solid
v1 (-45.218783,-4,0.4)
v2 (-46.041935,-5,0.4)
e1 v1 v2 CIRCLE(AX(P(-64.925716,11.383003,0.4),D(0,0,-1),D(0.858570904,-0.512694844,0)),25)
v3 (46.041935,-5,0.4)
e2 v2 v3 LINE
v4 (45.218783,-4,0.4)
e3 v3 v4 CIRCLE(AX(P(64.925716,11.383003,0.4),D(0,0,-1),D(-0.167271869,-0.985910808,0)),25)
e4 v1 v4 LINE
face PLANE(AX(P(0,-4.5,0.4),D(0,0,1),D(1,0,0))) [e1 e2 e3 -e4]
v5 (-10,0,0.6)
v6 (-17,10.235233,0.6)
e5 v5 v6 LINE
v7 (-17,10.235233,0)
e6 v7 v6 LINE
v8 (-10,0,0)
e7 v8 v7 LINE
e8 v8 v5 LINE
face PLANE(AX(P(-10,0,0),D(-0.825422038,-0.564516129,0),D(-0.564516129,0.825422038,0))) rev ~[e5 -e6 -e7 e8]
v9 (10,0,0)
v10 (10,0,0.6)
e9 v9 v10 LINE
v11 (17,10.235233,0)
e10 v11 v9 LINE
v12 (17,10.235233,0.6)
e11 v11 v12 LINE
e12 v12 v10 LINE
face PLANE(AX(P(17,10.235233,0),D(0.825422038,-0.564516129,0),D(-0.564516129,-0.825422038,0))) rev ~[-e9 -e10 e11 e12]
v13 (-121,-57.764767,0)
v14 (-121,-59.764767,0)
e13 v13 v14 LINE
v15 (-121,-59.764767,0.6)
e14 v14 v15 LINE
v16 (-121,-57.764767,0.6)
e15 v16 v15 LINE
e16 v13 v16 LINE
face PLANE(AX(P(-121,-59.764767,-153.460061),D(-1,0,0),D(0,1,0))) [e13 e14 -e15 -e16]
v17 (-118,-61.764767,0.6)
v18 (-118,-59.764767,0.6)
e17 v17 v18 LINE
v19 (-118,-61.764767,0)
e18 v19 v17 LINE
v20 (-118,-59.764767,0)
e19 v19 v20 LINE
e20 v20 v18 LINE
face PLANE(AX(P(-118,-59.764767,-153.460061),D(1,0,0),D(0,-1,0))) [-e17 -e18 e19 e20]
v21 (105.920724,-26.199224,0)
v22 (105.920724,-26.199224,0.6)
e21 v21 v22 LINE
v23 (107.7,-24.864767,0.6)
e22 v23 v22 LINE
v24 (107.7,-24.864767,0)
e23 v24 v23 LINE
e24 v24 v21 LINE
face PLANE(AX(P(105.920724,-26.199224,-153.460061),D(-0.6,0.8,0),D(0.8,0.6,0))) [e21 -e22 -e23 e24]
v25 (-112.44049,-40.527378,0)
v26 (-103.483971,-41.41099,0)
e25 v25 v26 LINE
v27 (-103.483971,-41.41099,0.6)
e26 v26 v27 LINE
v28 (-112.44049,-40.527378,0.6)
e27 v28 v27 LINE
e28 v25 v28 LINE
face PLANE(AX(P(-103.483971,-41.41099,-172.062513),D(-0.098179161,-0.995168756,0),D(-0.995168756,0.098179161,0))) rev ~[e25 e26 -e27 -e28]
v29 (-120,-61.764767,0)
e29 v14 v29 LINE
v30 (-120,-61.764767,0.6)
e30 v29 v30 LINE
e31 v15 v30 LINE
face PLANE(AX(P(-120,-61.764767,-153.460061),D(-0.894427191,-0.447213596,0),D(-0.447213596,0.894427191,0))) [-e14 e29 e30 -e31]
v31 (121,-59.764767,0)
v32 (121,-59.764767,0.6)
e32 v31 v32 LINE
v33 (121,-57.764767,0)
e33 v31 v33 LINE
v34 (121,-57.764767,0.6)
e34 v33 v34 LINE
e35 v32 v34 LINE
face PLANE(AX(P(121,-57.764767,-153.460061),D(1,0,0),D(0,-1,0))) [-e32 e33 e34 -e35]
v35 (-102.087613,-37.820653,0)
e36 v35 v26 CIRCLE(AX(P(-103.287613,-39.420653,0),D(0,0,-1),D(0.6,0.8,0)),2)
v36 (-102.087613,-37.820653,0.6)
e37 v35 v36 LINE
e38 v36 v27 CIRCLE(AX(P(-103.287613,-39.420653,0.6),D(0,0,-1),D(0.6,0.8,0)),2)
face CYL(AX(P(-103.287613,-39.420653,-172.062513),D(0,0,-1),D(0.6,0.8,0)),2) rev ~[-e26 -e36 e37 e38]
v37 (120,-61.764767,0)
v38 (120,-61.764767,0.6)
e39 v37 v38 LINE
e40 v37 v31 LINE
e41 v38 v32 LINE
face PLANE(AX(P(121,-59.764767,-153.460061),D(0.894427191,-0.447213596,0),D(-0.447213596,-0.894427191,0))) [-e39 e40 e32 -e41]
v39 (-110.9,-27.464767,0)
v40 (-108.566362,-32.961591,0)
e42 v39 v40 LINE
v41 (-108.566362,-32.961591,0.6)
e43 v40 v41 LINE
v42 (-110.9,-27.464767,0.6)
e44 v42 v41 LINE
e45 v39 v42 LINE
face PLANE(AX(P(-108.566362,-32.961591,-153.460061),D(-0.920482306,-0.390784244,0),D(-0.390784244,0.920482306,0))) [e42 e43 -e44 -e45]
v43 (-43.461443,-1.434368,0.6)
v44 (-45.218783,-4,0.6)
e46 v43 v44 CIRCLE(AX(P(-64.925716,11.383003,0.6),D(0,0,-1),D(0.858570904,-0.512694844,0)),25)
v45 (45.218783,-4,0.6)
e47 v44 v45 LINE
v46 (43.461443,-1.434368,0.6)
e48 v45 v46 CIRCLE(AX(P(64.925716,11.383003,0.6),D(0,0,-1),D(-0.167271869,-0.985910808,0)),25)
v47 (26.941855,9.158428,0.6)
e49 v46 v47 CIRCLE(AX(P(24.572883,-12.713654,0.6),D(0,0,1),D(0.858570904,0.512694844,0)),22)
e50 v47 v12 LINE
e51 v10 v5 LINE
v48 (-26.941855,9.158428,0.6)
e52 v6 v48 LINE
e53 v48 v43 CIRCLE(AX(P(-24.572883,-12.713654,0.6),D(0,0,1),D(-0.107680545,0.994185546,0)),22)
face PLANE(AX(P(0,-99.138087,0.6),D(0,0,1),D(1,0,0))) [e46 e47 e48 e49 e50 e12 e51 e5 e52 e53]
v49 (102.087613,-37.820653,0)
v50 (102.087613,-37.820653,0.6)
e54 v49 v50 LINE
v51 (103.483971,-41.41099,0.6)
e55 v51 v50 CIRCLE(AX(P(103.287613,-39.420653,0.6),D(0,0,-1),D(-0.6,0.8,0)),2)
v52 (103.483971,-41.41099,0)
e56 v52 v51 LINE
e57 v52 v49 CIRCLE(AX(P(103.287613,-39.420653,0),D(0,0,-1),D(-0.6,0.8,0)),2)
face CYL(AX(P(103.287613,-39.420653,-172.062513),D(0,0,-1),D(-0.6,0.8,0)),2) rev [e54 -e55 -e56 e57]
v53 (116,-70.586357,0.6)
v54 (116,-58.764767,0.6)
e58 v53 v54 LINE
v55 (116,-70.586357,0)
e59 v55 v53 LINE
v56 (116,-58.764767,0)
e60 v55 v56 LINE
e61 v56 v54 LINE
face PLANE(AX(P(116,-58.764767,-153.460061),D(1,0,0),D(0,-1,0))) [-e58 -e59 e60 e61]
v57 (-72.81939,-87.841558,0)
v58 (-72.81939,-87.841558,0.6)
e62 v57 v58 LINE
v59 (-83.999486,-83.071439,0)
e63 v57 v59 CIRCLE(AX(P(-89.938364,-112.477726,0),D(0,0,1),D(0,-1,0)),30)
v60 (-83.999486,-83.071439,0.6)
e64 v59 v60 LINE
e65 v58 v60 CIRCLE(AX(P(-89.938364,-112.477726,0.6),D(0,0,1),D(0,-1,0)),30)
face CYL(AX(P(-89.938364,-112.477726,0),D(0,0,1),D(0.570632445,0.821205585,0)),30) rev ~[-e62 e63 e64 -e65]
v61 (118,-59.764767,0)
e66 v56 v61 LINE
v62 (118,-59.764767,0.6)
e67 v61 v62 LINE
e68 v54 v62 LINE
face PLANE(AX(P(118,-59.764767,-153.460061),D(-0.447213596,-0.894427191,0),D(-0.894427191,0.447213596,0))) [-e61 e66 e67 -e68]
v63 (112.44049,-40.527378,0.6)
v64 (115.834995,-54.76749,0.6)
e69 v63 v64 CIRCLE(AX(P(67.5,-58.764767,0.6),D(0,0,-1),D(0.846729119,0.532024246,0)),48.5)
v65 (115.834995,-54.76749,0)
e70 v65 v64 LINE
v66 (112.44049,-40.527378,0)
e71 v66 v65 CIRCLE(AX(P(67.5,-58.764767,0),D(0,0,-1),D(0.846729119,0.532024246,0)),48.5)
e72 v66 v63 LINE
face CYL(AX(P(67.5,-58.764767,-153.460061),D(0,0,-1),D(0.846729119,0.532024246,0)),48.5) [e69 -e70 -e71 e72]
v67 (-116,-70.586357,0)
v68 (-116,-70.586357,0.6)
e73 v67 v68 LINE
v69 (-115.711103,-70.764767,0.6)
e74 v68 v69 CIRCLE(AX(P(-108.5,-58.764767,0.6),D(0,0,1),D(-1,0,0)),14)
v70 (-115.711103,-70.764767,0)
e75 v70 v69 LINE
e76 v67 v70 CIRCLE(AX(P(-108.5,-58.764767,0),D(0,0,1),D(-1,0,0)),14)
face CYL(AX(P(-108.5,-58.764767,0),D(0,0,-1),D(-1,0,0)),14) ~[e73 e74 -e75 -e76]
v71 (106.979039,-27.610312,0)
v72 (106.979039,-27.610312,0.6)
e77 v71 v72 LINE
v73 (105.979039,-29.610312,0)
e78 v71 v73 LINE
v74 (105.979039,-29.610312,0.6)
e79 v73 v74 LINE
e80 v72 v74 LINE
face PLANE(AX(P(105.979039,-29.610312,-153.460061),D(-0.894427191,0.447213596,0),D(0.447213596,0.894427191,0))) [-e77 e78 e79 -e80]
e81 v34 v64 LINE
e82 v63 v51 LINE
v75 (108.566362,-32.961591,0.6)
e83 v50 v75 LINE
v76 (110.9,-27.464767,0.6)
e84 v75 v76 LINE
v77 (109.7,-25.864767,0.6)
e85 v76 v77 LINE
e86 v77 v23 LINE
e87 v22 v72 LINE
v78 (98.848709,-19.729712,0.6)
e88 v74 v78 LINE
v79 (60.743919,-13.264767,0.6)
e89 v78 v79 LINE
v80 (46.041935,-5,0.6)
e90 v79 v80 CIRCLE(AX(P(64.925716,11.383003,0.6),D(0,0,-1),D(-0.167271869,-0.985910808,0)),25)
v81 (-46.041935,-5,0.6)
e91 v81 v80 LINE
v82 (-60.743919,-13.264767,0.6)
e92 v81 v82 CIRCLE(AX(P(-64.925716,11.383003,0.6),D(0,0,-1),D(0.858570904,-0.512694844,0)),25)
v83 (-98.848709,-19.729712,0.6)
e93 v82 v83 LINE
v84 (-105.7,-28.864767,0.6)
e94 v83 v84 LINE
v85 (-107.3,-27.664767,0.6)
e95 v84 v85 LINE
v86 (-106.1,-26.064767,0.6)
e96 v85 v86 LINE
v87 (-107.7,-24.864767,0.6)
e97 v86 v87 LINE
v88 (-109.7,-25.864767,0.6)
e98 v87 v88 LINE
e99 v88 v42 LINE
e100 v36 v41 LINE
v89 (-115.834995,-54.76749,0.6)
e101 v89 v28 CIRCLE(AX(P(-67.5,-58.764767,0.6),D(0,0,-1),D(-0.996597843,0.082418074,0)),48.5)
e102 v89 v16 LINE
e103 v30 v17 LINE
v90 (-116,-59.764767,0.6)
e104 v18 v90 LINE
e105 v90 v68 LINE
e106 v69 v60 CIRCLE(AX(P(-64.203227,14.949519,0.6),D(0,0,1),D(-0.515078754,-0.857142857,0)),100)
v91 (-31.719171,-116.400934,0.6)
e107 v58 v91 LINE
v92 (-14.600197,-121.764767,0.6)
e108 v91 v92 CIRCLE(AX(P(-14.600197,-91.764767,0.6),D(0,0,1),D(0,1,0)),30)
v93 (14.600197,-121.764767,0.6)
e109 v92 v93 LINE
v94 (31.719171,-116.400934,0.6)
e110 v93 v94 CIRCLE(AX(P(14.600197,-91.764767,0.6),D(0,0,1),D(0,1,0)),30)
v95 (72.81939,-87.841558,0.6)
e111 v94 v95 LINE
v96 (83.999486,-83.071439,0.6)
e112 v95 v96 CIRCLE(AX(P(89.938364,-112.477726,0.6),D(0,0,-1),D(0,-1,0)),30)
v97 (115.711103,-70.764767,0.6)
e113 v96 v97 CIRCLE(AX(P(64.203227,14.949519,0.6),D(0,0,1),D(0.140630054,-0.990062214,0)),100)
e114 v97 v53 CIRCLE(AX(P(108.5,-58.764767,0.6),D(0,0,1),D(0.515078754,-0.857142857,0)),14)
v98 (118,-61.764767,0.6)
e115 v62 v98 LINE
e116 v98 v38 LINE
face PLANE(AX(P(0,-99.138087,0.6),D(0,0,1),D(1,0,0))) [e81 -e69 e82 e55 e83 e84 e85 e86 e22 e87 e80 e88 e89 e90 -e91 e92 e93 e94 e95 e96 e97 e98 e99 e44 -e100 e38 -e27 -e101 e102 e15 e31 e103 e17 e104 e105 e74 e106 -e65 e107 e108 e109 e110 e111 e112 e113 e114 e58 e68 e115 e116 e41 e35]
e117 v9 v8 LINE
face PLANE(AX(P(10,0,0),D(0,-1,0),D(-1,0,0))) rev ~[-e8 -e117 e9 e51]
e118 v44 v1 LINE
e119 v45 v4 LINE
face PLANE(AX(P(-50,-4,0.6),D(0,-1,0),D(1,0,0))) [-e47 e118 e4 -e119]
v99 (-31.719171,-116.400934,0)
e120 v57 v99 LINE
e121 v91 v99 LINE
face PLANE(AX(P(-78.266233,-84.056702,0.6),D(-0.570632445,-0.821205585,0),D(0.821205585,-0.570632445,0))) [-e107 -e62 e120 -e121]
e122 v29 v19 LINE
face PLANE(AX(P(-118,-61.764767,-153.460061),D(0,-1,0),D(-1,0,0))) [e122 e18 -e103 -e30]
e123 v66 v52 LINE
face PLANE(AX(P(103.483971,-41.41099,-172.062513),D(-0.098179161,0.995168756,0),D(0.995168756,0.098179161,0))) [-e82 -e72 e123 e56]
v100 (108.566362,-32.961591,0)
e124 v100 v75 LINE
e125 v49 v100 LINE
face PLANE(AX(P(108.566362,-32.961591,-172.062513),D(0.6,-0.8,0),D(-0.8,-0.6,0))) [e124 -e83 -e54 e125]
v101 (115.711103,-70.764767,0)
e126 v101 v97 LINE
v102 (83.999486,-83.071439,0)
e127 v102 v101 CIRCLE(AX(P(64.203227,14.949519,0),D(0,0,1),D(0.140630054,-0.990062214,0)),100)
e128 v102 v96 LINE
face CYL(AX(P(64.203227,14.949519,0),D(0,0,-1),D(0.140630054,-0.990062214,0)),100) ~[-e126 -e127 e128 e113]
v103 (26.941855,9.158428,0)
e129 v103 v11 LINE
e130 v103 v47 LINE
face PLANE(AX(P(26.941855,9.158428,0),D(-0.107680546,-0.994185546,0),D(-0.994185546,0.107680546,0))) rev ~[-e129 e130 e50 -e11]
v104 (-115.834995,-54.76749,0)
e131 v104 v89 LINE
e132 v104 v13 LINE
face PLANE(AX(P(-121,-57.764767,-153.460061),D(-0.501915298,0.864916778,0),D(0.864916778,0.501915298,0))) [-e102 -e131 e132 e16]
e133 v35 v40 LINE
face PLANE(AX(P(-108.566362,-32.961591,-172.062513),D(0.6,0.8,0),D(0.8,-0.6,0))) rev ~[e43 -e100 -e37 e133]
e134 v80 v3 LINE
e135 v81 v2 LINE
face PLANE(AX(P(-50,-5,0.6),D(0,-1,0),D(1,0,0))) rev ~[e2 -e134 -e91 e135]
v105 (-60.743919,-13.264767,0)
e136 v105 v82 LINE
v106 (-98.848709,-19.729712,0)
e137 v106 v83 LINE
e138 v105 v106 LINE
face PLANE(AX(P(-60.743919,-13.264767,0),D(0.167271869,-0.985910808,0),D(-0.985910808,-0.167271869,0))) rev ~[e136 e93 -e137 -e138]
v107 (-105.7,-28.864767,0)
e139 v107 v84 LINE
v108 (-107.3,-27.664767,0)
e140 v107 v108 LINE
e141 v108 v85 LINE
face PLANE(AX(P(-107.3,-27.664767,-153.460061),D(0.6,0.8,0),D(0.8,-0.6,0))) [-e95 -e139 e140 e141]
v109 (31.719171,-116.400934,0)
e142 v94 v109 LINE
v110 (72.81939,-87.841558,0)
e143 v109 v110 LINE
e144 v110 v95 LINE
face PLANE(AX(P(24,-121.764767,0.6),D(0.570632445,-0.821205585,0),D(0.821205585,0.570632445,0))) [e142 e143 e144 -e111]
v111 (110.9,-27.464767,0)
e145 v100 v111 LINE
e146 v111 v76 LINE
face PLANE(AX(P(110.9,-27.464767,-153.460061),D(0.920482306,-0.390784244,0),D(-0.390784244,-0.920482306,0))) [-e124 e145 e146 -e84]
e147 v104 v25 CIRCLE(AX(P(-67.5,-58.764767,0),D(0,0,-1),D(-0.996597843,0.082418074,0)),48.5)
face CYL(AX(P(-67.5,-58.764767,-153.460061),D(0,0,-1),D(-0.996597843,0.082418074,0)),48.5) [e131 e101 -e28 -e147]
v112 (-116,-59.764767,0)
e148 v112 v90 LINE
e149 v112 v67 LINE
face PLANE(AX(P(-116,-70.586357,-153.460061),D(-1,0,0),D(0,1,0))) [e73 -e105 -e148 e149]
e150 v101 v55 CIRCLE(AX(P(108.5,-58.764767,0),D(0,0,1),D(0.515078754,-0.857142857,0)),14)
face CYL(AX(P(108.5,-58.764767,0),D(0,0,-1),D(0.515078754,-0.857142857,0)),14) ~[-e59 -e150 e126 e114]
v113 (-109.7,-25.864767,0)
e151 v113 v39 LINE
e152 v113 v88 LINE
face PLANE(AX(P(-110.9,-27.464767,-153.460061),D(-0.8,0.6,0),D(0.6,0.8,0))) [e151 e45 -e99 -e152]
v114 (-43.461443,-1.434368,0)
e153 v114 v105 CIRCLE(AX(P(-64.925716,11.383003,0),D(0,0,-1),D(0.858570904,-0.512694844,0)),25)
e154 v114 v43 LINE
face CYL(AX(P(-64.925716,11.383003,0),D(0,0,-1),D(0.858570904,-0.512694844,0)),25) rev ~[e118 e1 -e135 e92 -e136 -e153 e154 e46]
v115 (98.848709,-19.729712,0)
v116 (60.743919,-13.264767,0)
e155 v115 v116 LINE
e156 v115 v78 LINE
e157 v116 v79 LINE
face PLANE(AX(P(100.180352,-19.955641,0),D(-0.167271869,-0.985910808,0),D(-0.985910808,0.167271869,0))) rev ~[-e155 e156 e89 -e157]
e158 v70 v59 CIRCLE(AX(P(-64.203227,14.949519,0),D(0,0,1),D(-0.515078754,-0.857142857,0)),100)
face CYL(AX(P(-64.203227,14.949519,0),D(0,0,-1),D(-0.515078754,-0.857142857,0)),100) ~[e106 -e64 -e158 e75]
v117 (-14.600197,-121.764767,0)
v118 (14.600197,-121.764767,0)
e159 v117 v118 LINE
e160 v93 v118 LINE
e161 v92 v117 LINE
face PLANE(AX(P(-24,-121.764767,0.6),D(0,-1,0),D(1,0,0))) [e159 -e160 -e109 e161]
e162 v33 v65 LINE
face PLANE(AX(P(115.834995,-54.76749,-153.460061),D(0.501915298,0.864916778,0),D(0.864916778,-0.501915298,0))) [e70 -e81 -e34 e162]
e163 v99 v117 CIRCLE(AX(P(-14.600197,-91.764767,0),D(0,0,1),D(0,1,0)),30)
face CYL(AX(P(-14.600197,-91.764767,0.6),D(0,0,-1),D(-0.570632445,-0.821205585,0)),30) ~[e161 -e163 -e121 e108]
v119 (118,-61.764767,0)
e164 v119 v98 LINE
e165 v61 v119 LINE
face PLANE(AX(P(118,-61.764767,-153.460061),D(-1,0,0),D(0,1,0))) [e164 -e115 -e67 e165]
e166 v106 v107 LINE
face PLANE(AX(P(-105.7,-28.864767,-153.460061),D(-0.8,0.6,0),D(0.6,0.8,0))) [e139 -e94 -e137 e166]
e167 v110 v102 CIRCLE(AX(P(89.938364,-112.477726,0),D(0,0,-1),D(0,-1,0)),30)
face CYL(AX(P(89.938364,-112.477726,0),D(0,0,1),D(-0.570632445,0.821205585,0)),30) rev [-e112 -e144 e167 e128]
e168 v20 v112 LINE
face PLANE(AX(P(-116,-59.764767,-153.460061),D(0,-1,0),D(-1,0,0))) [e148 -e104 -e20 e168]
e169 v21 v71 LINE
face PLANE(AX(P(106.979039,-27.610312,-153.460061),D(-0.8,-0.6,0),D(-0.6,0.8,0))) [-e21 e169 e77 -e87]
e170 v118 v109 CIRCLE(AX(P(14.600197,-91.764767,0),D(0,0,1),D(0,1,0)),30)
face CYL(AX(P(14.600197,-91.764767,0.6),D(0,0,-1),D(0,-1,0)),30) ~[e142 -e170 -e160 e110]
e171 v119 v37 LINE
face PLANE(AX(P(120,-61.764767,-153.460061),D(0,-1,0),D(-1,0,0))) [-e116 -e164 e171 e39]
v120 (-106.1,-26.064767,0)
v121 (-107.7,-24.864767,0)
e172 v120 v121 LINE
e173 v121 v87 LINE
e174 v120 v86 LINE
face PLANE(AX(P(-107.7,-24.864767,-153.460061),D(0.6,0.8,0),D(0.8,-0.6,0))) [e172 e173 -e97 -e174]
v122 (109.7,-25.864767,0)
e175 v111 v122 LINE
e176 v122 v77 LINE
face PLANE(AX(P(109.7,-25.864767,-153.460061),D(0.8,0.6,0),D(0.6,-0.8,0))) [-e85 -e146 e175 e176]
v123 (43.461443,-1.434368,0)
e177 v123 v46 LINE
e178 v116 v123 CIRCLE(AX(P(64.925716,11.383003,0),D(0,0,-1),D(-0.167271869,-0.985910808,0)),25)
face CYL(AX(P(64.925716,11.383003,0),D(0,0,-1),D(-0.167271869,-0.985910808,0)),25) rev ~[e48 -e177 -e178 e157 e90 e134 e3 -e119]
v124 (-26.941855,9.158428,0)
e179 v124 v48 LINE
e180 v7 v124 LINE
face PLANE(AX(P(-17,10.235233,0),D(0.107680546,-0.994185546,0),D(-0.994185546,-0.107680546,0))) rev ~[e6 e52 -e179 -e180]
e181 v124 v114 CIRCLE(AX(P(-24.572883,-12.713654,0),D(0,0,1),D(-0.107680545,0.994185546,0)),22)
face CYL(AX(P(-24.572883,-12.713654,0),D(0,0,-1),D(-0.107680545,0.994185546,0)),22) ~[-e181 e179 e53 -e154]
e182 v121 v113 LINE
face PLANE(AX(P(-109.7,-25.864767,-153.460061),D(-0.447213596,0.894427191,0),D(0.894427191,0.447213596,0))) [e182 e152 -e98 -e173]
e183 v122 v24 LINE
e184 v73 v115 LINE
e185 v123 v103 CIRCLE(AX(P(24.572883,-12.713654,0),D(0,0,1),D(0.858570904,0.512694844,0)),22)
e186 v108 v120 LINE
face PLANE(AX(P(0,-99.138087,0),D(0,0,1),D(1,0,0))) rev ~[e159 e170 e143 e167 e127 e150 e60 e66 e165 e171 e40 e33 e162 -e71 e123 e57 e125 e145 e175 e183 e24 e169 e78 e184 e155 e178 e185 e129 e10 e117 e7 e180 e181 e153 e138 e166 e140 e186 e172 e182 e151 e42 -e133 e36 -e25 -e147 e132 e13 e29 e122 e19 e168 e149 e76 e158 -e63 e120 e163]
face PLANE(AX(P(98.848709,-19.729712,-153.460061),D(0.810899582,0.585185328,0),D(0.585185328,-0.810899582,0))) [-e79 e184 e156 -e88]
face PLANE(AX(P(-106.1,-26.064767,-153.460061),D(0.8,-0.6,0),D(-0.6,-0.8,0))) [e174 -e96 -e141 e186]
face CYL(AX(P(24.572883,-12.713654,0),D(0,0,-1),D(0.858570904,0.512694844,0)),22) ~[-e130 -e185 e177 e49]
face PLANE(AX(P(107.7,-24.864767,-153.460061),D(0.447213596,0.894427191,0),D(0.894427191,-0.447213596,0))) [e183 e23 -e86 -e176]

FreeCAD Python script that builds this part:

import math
import FreeCAD as App
import Part
import Sketcher

V = App.Vector


def edges_at(feature, points):
    """Names of the edges that pass closest to the given points."""
    edges = feature.Shape.Edges
    near = lambda p: min(range(len(edges)), key=lambda i: edges[i].distToShape(Part.Vertex(*p))[0])
    return sorted({f"Edge{near(p) + 1}" for p in points})


def add_polygon(sketch, points):
    """Adds a closed chain of lines whose ends are joined by coincident constraints."""
    first, n = sketch.GeometryCount, len(points)
    for a, b in zip(points, points[1:] + points[:1]):
        sketch.addGeometry(Part.LineSegment(App.Vector(*a, 0), App.Vector(*b, 0)), False)
    for i in range(n):
        sketch.addConstraint(Sketcher.Constraint("Coincident", first + i, 2, first + (i + 1) % n, 1))

doc = App.newDocument("Part")
params = doc.addObject("Spreadsheet::Sheet", "Params")
for row, (alias, value) in enumerate([
    ("sketch1_radius", "100 mm"),
    ("sketch1_radius2", "14 mm"),
    ("sketch1_radius3", "55 mm"),
    ("sketch1_radius4", "20 mm"),
    ("sketch1_radius5", "25 mm"),
    ("pad1_length", "0.6 mm"),
    ("sketch2_radius", "20 mm"),
    ("sketch2_radius2", "55 mm"),
    ("sketch2_radius3", "14 mm"),
    ("sketch2_radius4", "48.5 mm"),
    ("sketch2_width", "2 mm"),
    ("sketch3_width", "48 mm"),
    ("pad2_length", "0.6 mm"),
    ("fillet_radius", "30 mm"),
    ("sketch4_radius", "2 mm"),
    ("sketch4_radius2", "48.5 mm"),
    ("sketch4_length", "9 mm"),
    ("sketch4_width", "1.2 mm"),
    ("sketch5_width", "100 mm"),
    ("sketch5_height", "1 mm"),
    ("pocket3_length", "0.2 mm"),
], start=1):
    params.set(f"A{row}", alias)
    params.set(f"B{row}", "=" + value)
    params.setAlias(f"B{row}", alias)

body = doc.addObject("PartDesign::Body", "Body")

# Sketch on XY plane
sketch1 = body.newObject("Sketcher::SketchObject", "Sketch")
sketch1.AttachmentSupport = (doc.getObject("XY_Plane"), [""])
sketch1.MapMode = "FlatFace"
sketch1.addGeometry(Part.LineSegment(V(-24, -92, 0), V(24, -92, 0)), False)
sketch1.addGeometry(Part.LineSegment(V(24, -92, 0), V(78, -84, 0)), False)
sketch1.addGeometry(Part.ArcOfCircle(Part.Circle(V(64, 15, 0), V(0, 0, 1), 100), math.radians(-82), math.radians(-59)), False)
sketch1.addGeometry(Part.ArcOfCircle(Part.Circle(V(109, -59, 0), V(0, 0, 1), 14), math.radians(-59), math.radians(0)), False)
sketch1.addGeometry(Part.ArcOfCircle(Part.Circle(V(68, -59, 0), V(0, 0, 1), 55), math.radians(0), math.radians(33)), False)
sketch1.addGeometry(Part.ArcOfCircle(Part.Circle(V(97, -40, 0), V(0, 0, 1), 20), math.radians(33), math.radians(80)), False)
sketch1.addGeometry(Part.LineSegment(V(100, -20, 0), V(61, -13, 0)), False)
sketch1.addGeometry(Part.ArcOfCircle(Part.Circle(V(65, 11, 0), V(0, 0, 1), 25), math.radians(-149), math.radians(-100)), False)
sketch1.addGeometry(Part.ArcOfCircle(Part.Circle(V(25, -13, 0), V(0, 0, 1), 22), math.radians(31), math.radians(84)), False)
sketch1.addGeometry(Part.LineSegment(V(27, 9, 0), V(17, 10, 0)), False)
sketch1.addGeometry(Part.LineSegment(V(17, 10, 0), V(10, 0, 0)), False)
sketch1.addGeometry(Part.LineSegment(V(10, 0, 0), V(-10, 0, 0)), False)
sketch1.addGeometry(Part.LineSegment(V(-10, 0, 0), V(-17, 10, 0)), False)
sketch1.addGeometry(Part.LineSegment(V(-17, 10, 0), V(-27, 9, 0)), False)
sketch1.addGeometry(Part.ArcOfCircle(Part.Circle(V(-25, -13, 0), V(0, 0, 1), 22), math.radians(96), math.radians(149)), False)
sketch1.addGeometry(Part.ArcOfCircle(Part.Circle(V(-65, 11, 0), V(0, 0, 1), 25), math.radians(-80), math.radians(-31)), False)
sketch1.addGeometry(Part.LineSegment(V(-61, -13, 0), V(-100, -20, 0)), False)
sketch1.addGeometry(Part.ArcOfCircle(Part.Circle(V(-97, -40, 0), V(0, 0, 1), 20), math.radians(100), math.radians(147)), False)
sketch1.addGeometry(Part.ArcOfCircle(Part.Circle(V(-68, -59, 0), V(0, 0, 1), 55), math.radians(147), math.radians(180)), False)
sketch1.addGeometry(Part.ArcOfCircle(Part.Circle(V(-109, -59, 0), V(0, 0, 1), 14), math.radians(180), math.radians(239)), False)
sketch1.addGeometry(Part.ArcOfCircle(Part.Circle(V(-64, 15, 0), V(0, 0, 1), 100), math.radians(-121), math.radians(-98)), False)
sketch1.addGeometry(Part.LineSegment(V(-78, -84, 0), V(-24, -92, 0)), False)
sketch1.addConstraint(Sketcher.Constraint("Coincident", 0, 2, 1, 1))
sketch1.addConstraint(Sketcher.Constraint("Tangent", 1, 2, 2, 1))
sketch1.addConstraint(Sketcher.Constraint("Tangent", 2, 2, 3, 1))
sketch1.addConstraint(Sketcher.Constraint("Tangent", 3, 2, 4, 1))
sketch1.addConstraint(Sketcher.Constraint("Tangent", 4, 2, 5, 1))
sketch1.addConstraint(Sketcher.Constraint("Tangent", 5, 2, 6, 1))
sketch1.addConstraint(Sketcher.Constraint("Tangent", 6, 2, 7, 2))
sketch1.addConstraint(Sketcher.Constraint("Tangent", 7, 1, 8, 1))
sketch1.addConstraint(Sketcher.Constraint("Tangent", 8, 2, 9, 1))
sketch1.addConstraint(Sketcher.Constraint("Coincident", 9, 2, 10, 1))
sketch1.addConstraint(Sketcher.Constraint("Coincident", 10, 2, 11, 1))
sketch1.addConstraint(Sketcher.Constraint("Coincident", 11, 2, 12, 1))
sketch1.addConstraint(Sketcher.Constraint("Coincident", 12, 2, 13, 1))
sketch1.addConstraint(Sketcher.Constraint("Tangent", 13, 2, 14, 1))
sketch1.addConstraint(Sketcher.Constraint("Tangent", 14, 2, 15, 2))
sketch1.addConstraint(Sketcher.Constraint("Tangent", 15, 1, 16, 1))
sketch1.addConstraint(Sketcher.Constraint("Tangent", 16, 2, 17, 1))
sketch1.addConstraint(Sketcher.Constraint("Tangent", 17, 2, 18, 1))
sketch1.addConstraint(Sketcher.Constraint("Tangent", 18, 2, 19, 1))
sketch1.addConstraint(Sketcher.Constraint("Tangent", 19, 2, 20, 1))
sketch1.addConstraint(Sketcher.Constraint("Tangent", 20, 2, 21, 1))
sketch1.addConstraint(Sketcher.Constraint("Coincident", 21, 2, 0, 1))
sketch1.addConstraint(Sketcher.Constraint("Horizontal", 0))
sketch1.addConstraint(Sketcher.Constraint("Horizontal", 11))
sketch1.addConstraint(Sketcher.Constraint("Equal", 8, 14))
sketch1.addConstraint(Sketcher.Constraint("Equal", 7, 15))
sketch1.addConstraint(Sketcher.Constraint("Equal", 5, 17))
sketch1.addConstraint(Sketcher.Constraint("Equal", 4, 18))
sketch1.addConstraint(Sketcher.Constraint("Equal", 3, 19))
sketch1.addConstraint(Sketcher.Constraint("Equal", 2, 20))
sketch1.addConstraint(Sketcher.Constraint("Symmetric", 10, 2, 11, 2, -1, 1))
sketch1.addConstraint(Sketcher.Constraint("Symmetric", 8, 3, 14, 3, -2))
sketch1.addConstraint(Sketcher.Constraint("Symmetric", 5, 3, 17, 3, -2))
sketch1.addConstraint(Sketcher.Constraint("Symmetric", 3, 3, 19, 3, -2))
sketch1.addConstraint(Sketcher.Constraint("Symmetric", 9, 2, 12, 2, -2))
sketch1.addConstraint(Sketcher.Constraint("Symmetric", 1, 2, 20, 2, -2))
sketch1.addConstraint(Sketcher.Constraint("Horizontal", 3, 3, 4, 3))
sketch1.addConstraint(Sketcher.Constraint("Horizontal", 7, 3, 15, 3))
sketch1.addConstraint(Sketcher.Constraint("Radius", 2, 100.0))
sketch1.addConstraint(Sketcher.Constraint("Radius", 3, 14.0))
sketch1.addConstraint(Sketcher.Constraint("Radius", 4, 55.0))
sketch1.addConstraint(Sketcher.Constraint("Radius", 5, 20.0))
sketch1.addConstraint(Sketcher.Constraint("Radius", 7, 25.0))
sketch1.addConstraint(Sketcher.Constraint("Radius", 8, 22.0))
sketch1.addConstraint(Sketcher.Constraint("DistanceX", 0, 1, 0, 2, 48.0))
sketch1.addConstraint(Sketcher.Constraint("DistanceX", 11, 2, 11, 1, 20.0))
sketch1.addConstraint(Sketcher.Constraint("Distance", 6, 40.0))
sketch1.addConstraint(Sketcher.Constraint("Distance", 9, 10.0))
sketch1.addConstraint(Sketcher.Constraint("DistanceX", -1, 1, 9, 2, 17.0))
sketch1.addConstraint(Sketcher.Constraint("DistanceX", 18, 3, 4, 3, 135.0))
sketch1.addConstraint(Sketcher.Constraint("DistanceY", 0, 2, 4, 3, 33.0))
sketch1.addConstraint(Sketcher.Constraint("DistanceY", 3, 3, 4, 2, 30.0))
sketch1.addConstraint(Sketcher.Constraint("DistanceY", 19, 2, 19, 3, 12.0))
sketch1.addConstraint(Sketcher.Constraint("Distance", 10, 12.4))
sketch1.addConstraint(Sketcher.Constraint("DistanceY", 17, 2, 15, 1, 15.5))
sketch1.addConstraint(Sketcher.Constraint("DistanceX", 14, 3, 7, 3, 89.498599))
sketch1.setExpression("Constraints[38]", "Params.sketch1_radius")
sketch1.setExpression("Constraints[39]", "Params.sketch1_radius2")
sketch1.setExpression("Constraints[40]", "Params.sketch1_radius3")
sketch1.setExpression("Constraints[41]", "Params.sketch1_radius4")
sketch1.setExpression("Constraints[42]", "Params.sketch1_radius5")
pad1 = body.newObject("PartDesign::Pad", "Pad")
pad1.Profile = sketch1
pad1.setExpression("Length", "Params.pad1_length")

# Sketch on XY plane
sketch2 = body.newObject("Sketcher::SketchObject", "Sketch001")
sketch2.AttachmentSupport = (doc.getObject("XY_Plane"), [""])
sketch2.MapMode = "FlatFace"
sketch2.AttachmentOffset = App.Placement(V(0, 0, 0.6), App.Rotation())
sketch2.addGeometry(Part.LineSegment(V(-121, -59.8, 0), V(-121, -57.8, 0)), False)
sketch2.addGeometry(Part.LineSegment(V(-121, -57.8, 0), V(-115.8, -54.8, 0)), False)
sketch2.addGeometry(Part.ArcOfCircle(Part.Circle(V(-67.5, -58.8, 0), V(0, 0, 1), 48.5), math.radians(148), math.radians(175)), False)
sketch2.addGeometry(Part.LineSegment(V(-108.6, -33, 0), V(-110.9, -27.5, 0)), False)
sketch2.addGeometry(Part.LineSegment(V(-110.9, -27.5, 0), V(-109.7, -25.9, 0)), False)
sketch2.addGeometry(Part.LineSegment(V(-109.7, -25.9, 0), V(-107.7, -24.9, 0)), False)
sketch2.addGeometry(Part.LineSegment(V(-107.7, -24.9, 0), V(-106.1, -26.1, 0)), False)
sketch2.addGeometry(Part.LineSegment(V(-106.1, -26.1, 0), V(-107.3, -27.7, 0)), False)
sketch2.addGeometry(Part.LineSegment(V(-107.3, -27.7, 0), V(-105.7, -28.9, 0)), False)
sketch2.addGeometry(Part.LineSegment(V(-105.7, -28.9, 0), V(-98.8, -19.7, 0)), False)
sketch2.addGeometry(Part.LineSegment(V(-98.8, -19.7, 0), V(-100.2, -20, 0)), False)
sketch2.addGeometry(Part.ArcOfCircle(Part.Circle(V(-96.8, -39.7, 0), V(0, 0, 1), 20), math.radians(100), math.radians(147)), False)
sketch2.addGeometry(Part.ArcOfCircle(Part.Circle(V(-67.5, -58.8, 0), V(0, 0, 1), 55), math.radians(147), math.radians(180)), False)
sketch2.addGeometry(Part.ArcOfCircle(Part.Circle(V(-108.5, -58.8, 0), V(0, 0, 1), 14), math.radians(-180), math.radians(-122)), False)
sketch2.addGeometry(Part.LineSegment(V(-116, -70.6, 0), V(-116, -59.8, 0)), False)
sketch2.addGeometry(Part.LineSegment(V(-116, -59.8, 0), V(-118, -59.8, 0)), False)
sketch2.addGeometry(Part.LineSegment(V(-118, -59.8, 0), V(-118, -61.8, 0)), False)
sketch2.addGeometry(Part.LineSegment(V(-118, -61.8, 0), V(-120, -61.8, 0)), False)
sketch2.addGeometry(Part.LineSegment(V(-120, -61.8, 0), V(-121, -59.8, 0)), False)
sketch2.addGeometry(Part.LineSegment(V(109.7, -25.9, 0), V(110.9, -27.5, 0)), False)
sketch2.addGeometry(Part.LineSegment(V(110.9, -27.5, 0), V(108.6, -33, 0)), False)
sketch2.addGeometry(Part.ArcOfCircle(Part.Circle(V(67.5, -58.8, 0), V(0, 0, 1), 48.5), math.radians(5), math.radians(32)), False)
sketch2.addGeometry(Part.LineSegment(V(115.8, -54.8, 0), V(121, -57.8, 0)), False)
sketch2.addGeometry(Part.LineSegment(V(121, -57.8, 0), V(121, -59.8, 0)), False)
sketch2.addGeometry(Part.LineSegment(V(121, -59.8, 0), V(120, -61.8, 0)), False)
sketch2.addGeometry(Part.LineSegment(V(120, -61.8, 0), V(118, -61.8, 0)), False)
sketch2.addGeometry(Part.LineSegment(V(118, -61.8, 0), V(118, -59.8, 0)), False)
sketch2.addGeometry(Part.LineSegment(V(118, -59.8, 0), V(116, -58.8, 0)), False)
sketch2.addGeometry(Part.LineSegment(V(116, -58.8, 0), V(116, -70.6, 0)), False)
sketch2.addGeometry(Part.ArcOfCircle(Part.Circle(V(108.5, -58.8, 0), V(0, 0, 1), 14), math.radians(-58), math.radians(0)), False)
sketch2.addGeometry(Part.ArcOfCircle(Part.Circle(V(67.5, -58.8, 0), V(0, 0, 1), 55), math.radians(0), math.radians(33)), False)
sketch2.addGeometry(Part.ArcOfCircle(Part.Circle(V(96.8, -39.7, 0), V(0, 0, 1), 20), math.radians(33), math.radians(80)), False)
sketch2.addGeometry(Part.LineSegment(V(100.2, -20, 0), V(98.8, -19.7, 0)), False)
sketch2.addGeometry(Part.LineSegment(V(98.8, -19.7, 0), V(106, -29.6, 0)), False)
sketch2.addGeometry(Part.LineSegment(V(106, -29.6, 0), V(107, -27.6, 0)), False)
sketch2.addGeometry(Part.LineSegment(V(107, -27.6, 0), V(105.9, -26.2, 0)), False)
sketch2.addGeometry(Part.LineSegment(V(105.9, -26.2, 0), V(107.7, -24.9, 0)), False)
sketch2.addGeometry(Part.LineSegment(V(107.7, -24.9, 0), V(109.7, -25.9, 0)), False)
sketch2.addConstraint(Sketcher.Constraint("Coincident", 0, 2, 1, 1))
sketch2.addConstraint(Sketcher.Constraint("Coincident", 1, 2, 2, 2))
sketch2.addConstraint(Sketcher.Constraint("Coincident", 2, 1, 3, 1))
sketch2.addConstraint(Sketcher.Constraint("Coincident", 3, 2, 4, 1))
sketch2.addConstraint(Sketcher.Constraint("Coincident", 4, 2, 5, 1))
sketch2.addConstraint(Sketcher.Constraint("Coincident", 5, 2, 6, 1))
sketch2.addConstraint(Sketcher.Constraint("Coincident", 6, 2, 7, 1))
sketch2.addConstraint(Sketcher.Constraint("Coincident", 7, 2, 8, 1))
sketch2.addConstraint(Sketcher.Constraint("Coincident", 8, 2, 9, 1))
sketch2.addConstraint(Sketcher.Constraint("Coincident", 9, 2, 10, 1))
sketch2.addConstraint(Sketcher.Constraint("Tangent", 10, 2, 11, 1))
sketch2.addConstraint(Sketcher.Constraint("Tangent", 11, 2, 12, 1))
sketch2.addConstraint(Sketcher.Constraint("Tangent", 12, 2, 13, 1))
sketch2.addConstraint(Sketcher.Constraint("Coincident", 13, 2, 14, 1))
sketch2.addConstraint(Sketcher.Constraint("Coincident", 14, 2, 15, 1))
sketch2.addConstraint(Sketcher.Constraint("Coincident", 15, 2, 16, 1))
sketch2.addConstraint(Sketcher.Constraint("Coincident", 16, 2, 17, 1))
sketch2.addConstraint(Sketcher.Constraint("Coincident", 17, 2, 18, 1))
sketch2.addConstraint(Sketcher.Constraint("Coincident", 18, 2, 0, 1))
sketch2.addConstraint(Sketcher.Constraint("Coincident", 19, 2, 20, 1))
sketch2.addConstraint(Sketcher.Constraint("Coincident", 20, 2, 21, 2))
sketch2.addConstraint(Sketcher.Constraint("Coincident", 21, 1, 22, 1))
sketch2.addConstraint(Sketcher.Constraint("Coincident", 22, 2, 23, 1))
sketch2.addConstraint(Sketcher.Constraint("Coincident", 23, 2, 24, 1))
sketch2.addConstraint(Sketcher.Constraint("Coincident", 24, 2, 25, 1))
sketch2.addConstraint(Sketcher.Constraint("Coincident", 25, 2, 26, 1))
sketch2.addConstraint(Sketcher.Constraint("Coincident", 26, 2, 27, 1))
sketch2.addConstraint(Sketcher.Constraint("Coincident", 27, 2, 28, 1))
sketch2.addConstraint(Sketcher.Constraint("Coincident", 28, 2, 29, 1))
sketch2.addConstraint(Sketcher.Constraint("Tangent", 29, 2, 30, 1))
sketch2.addConstraint(Sketcher.Constraint("Tangent", 30, 2, 31, 1))
sketch2.addConstraint(Sketcher.Constraint("Tangent", 31, 2, 32, 1))
sketch2.addConstraint(Sketcher.Constraint("Coincident", 32, 2, 33, 1))
sketch2.addConstraint(Sketcher.Constraint("Coincident", 33, 2, 34, 1))
sketch2.addConstraint(Sketcher.Constraint("Coincident", 34, 2, 35, 1))
sketch2.addConstraint(Sketcher.Constraint("Coincident", 35, 2, 36, 1))
sketch2.addConstraint(Sketcher.Constraint("Coincident", 36, 2, 37, 1))
sketch2.addConstraint(Sketcher.Constraint("Coincident", 37, 2, 19, 1))
sketch2.addConstraint(Sketcher.Constraint("Vertical", 0))
sketch2.addConstraint(Sketcher.Constraint("Vertical", 14))
sketch2.addConstraint(Sketcher.Constraint("Horizontal", 15))
sketch2.addConstraint(Sketcher.Constraint("Vertical", 16))
sketch2.addConstraint(Sketcher.Constraint("Horizontal", 17))
sketch2.addConstraint(Sketcher.Constraint("Vertical", 23))
sketch2.addConstraint(Sketcher.Constraint("Horizontal", 25))
sketch2.addConstraint(Sketcher.Constraint("Vertical", 26))
sketch2.addConstraint(Sketcher.Constraint("Vertical", 28))
sketch2.addConstraint(Sketcher.Constraint("Coincident", 12, 3, 2, 3))
sketch2.addConstraint(Sketcher.Constraint("Coincident", 30, 3, 21, 3))
sketch2.addConstraint(Sketcher.Constraint("Equal", 2, 21))
sketch2.addConstraint(Sketcher.Constraint("Equal", 13, 29))
sketch2.addConstraint(Sketcher.Constraint("Equal", 12, 30))
sketch2.addConstraint(Sketcher.Constraint("Equal", 11, 31))
sketch2.addConstraint(Sketcher.Constraint("Symmetric", 2, 3, 21, 3, -2))
sketch2.addConstraint(Sketcher.Constraint("Symmetric", 3, 2, 19, 2, -2))
sketch2.addConstraint(Sketcher.Constraint("Symmetric", 0, 2, 22, 2, -2))
sketch2.addConstraint(Sketcher.Constraint("Symmetric", 17, 2, 24, 2, -2))
sketch2.addConstraint(Sketcher.Constraint("Symmetric", 15, 2, 26, 2, -2))
sketch2.addConstraint(Sketcher.Constraint("Symmetric", 13, 2, 28, 2, -2))
sketch2.addConstraint(Sketcher.Constraint("Symmetric", 10, 2, 31, 2, -2))
sketch2.addConstraint(Sketcher.Constraint("Symmetric", 5, 2, 36, 2, -2))
sketch2.addConstraint(Sketcher.Constraint("Symmetric", 4, 2, 37, 2, -2))
sketch2.addConstraint(Sketcher.Constraint("Perpendicular", 4, 6))
sketch2.addConstraint(Sketcher.Constraint("Perpendicular", 6, 7))
sketch2.addConstraint(Sketcher.Constraint("Perpendicular", 7, 8))
sketch2.addConstraint(Sketcher.Constraint("Perpendicular", 8, 9))
sketch2.addConstraint(Sketcher.Constraint("Perpendicular", 5, 18))
sketch2.addConstraint(Sketcher.Constraint("Perpendicular", 24, 27))
sketch2.addConstraint(Sketcher.Constraint("Perpendicular", 27, 34))
sketch2.addConstraint(Sketcher.Constraint("Parallel", 19, 35))
sketch2.addConstraint(Sketcher.Constraint("Perpendicular", 35, 36))
sketch2.addConstraint(Sketcher.Constraint("Perpendicular", 34, 37))
sketch2.addConstraint(Sketcher.Constraint("Horizontal", 12, 3, 13, 3))
sketch2.addConstraint(Sketcher.Constraint("Horizontal", 15, 2, 18, 2))
sketch2.addConstraint(Sketcher.Constraint("Horizontal", 2, 1, 20, 2))
sketch2.addConstraint(Sketcher.Constraint("Horizontal", 1, 2, 21, 1))
sketch2.addConstraint(Sketcher.Constraint("Horizontal", 12, 2, 27, 2))
sketch2.addConstraint(Sketcher.Constraint("Horizontal", 9, 2, 32, 2))
sketch2.addConstraint(Sketcher.Constraint("Equal", 15, 17))
sketch2.addConstraint(Sketcher.Constraint("Equal", 25, 0))
sketch2.addConstraint(Sketcher.Constraint("Equal", 0, 16))
sketch2.addConstraint(Sketcher.Constraint("Equal", 1, 3))
sketch2.addConstraint(Sketcher.Constraint("Equal", 4, 6))
sketch2.addConstraint(Sketcher.Constraint("Equal", 6, 7))
sketch2.addConstraint(Sketcher.Constraint("Equal", 7, 8))
sketch2.addConstraint(Sketcher.Constraint("Equal", 5, 18))
sketch2.addConstraint(Sketcher.Constraint("Equal", 27, 34))
sketch2.addConstraint(Sketcher.Constraint("Radius", 11, 20.0))
sketch2.addConstraint(Sketcher.Constraint("Radius", 12, 55.0))
sketch2.addConstraint(Sketcher.Constraint("Radius", 13, 14.0))
sketch2.addConstraint(Sketcher.Constraint("Radius", 2, 48.5))
sketch2.addConstraint(Sketcher.Constraint("DistanceX", 15, 2, 15, 1, 2.0))
sketch2.addConstraint(Sketcher.Constraint("Distance", 4, 2.0))
sketch2.addConstraint(Sketcher.Constraint("DistanceX", 0, 2, -1, 1, 121.0))
sketch2.addConstraint(Sketcher.Constraint("DistanceX", 13, 2, -1, 1, 116.0))
sketch2.addConstraint(Sketcher.Constraint("DistanceX", 2, 3, 21, 3, 135.0))
sketch2.addConstraint(Sketcher.Constraint("DistanceX", 5, 2, 8, 2, 2.0))
sketch2.addConstraint(Sketcher.Constraint("DistanceY", 12, 2, 11, 2, 30.0))
sketch2.addConstraint(Sketcher.Constraint("DistanceX", 3, 2, -1, 1, 110.9))
sketch2.addConstraint(Sketcher.Constraint("DistanceY", 13, 3, 3, 2, 31.3))
sketch2.addConstraint(Sketcher.Constraint("DistanceX", 35, 2, 30, 2, 7.676999))
sketch2.addConstraint(Sketcher.Constraint("DistanceY", 1, 2, 2, 1, 21.805899))
sketch2.addConstraint(Sketcher.Constraint("DistanceY", 33, 2, 32, 2, 9.8806))
sketch2.addConstraint(Sketcher.Constraint("Distance", 9, 11.418818))
sketch2.addConstraint(Sketcher.Constraint("DistanceY", 1, 2, -1, 1, 54.76749))
sketch2.setExpression("Constraints[87]", "Params.sketch2_radius")
sketch2.setExpression("Constraints[88]", "Params.sketch2_radius2")
sketch2.setExpression("Constraints[89]", "Params.sketch2_radius3")
sketch2.setExpression("Constraints[90]", "Params.sketch2_radius4")
sketch2.setExpression("Constraints[91]", "Params.sketch2_width")
pocket1 = body.newObject("PartDesign::Pocket", "Pocket")
pocket1.Profile = sketch2
pocket1.Type = "ThroughAll"
pocket1.Midplane = True

# Sketch on XY plane
sketch3 = body.newObject("Sketcher::SketchObject", "Sketch002")
sketch3.AttachmentSupport = (doc.getObject("XY_Plane"), [""])
sketch3.MapMode = "FlatFace"
sketch3.AttachmentOffset = App.Placement(V(0, 0, 0.6), App.Rotation())
add_polygon(sketch3, [(-78, -84), (-24, -122), (24, -122), (78, -84), (24, -92), (-24, -92)])  # lines 0-5
sketch3.addConstraint(Sketcher.Constraint("Horizontal", 1))
sketch3.addConstraint(Sketcher.Constraint("Horizontal", 4))
sketch3.addConstraint(Sketcher.Constraint("Symmetric", 2, 2, 5, 2, -2))
sketch3.addConstraint(Sketcher.Constraint("Vertical", 1, 2, 3, 2))
sketch3.addConstraint(Sketcher.Constraint("Vertical", 0, 2, 4, 2))
sketch3.addConstraint(Sketcher.Constraint("Equal", 0, 2))
sketch3.addConstraint(Sketcher.Constraint("DistanceX", 1, 1, 1, 2, 48.0))
sketch3.addConstraint(Sketcher.Constraint("DistanceY", 1, 2, 3, 2, 30.0))
sketch3.addConstraint(Sketcher.Constraint("Distance", 0, 66.081178))
sketch3.addConstraint(Sketcher.Constraint("Distance", 3, 54.810932))
sketch3.addConstraint(Sketcher.Constraint("DistanceY", 0, 2, -1, 1, 121.764767))
sketch3.setExpression("Constraints[12]", "Params.sketch3_width")
pad2 = body.newObject("PartDesign::Pad", "Pad001")
pad2.Profile = sketch3
pad2.setExpression("Length", "Params.pad2_length")
pad2.Reversed = True
doc.recompute()

fillet = body.newObject("PartDesign::Fillet", "Fillet")
fillet.Base = (pad2, edges_at(pad2, [
    (-24, -121.765, 0.3),
    (24, -121.765, 0.3),
    (78.266, -84.057, 0.3),
    (-78.266, -84.057, 0.3),
]))
fillet.setExpression("Radius", "Params.fillet_radius")

# Sketch on XY plane
sketch4 = body.newObject("Sketcher::SketchObject", "Sketch003")
sketch4.AttachmentSupport = (doc.getObject("XY_Plane"), [""])
sketch4.MapMode = "FlatFace"
sketch4.AttachmentOffset = App.Placement(V(0, 0, 0.6), App.Rotation())
sketch4.addGeometry(Part.LineSegment(V(-112.4, -40.5, 0), V(-103.5, -41.4, 0)), False)
sketch4.addGeometry(Part.ArcOfCircle(Part.Circle(V(-103.3, -39.4, 0), V(0, 0, 1), 2), math.radians(-96), math.radians(53)), False)
sketch4.addGeometry(Part.LineSegment(V(-102.1, -37.8, 0), V(-108.6, -33, 0)), False)
sketch4.addGeometry(Part.ArcOfCircle(Part.Circle(V(-67.5, -58.8, 0), V(0, 0, 1), 48.5), math.radians(147.86), math.radians(157.91)), False)
sketch4.addGeometry(Part.LineSegment(V(108.6, -33, 0), V(102.1, -37.8, 0)), False)
sketch4.addGeometry(Part.ArcOfCircle(Part.Circle(V(103.3, -39.4, 0), V(0, 0, 1), 2), math.radians(127), math.radians(276)), False)
sketch4.addGeometry(Part.LineSegment(V(103.5, -41.4, 0), V(112.4, -40.5, 0)), False)
sketch4.addGeometry(Part.ArcOfCircle(Part.Circle(V(67.5, -58.8, 0), V(0, 0, 1), 48.5), math.radians(22.09), math.radians(32.14)), False)
sketch4.addConstraint(Sketcher.Constraint("Tangent", 0, 2, 1, 1))
sketch4.addConstraint(Sketcher.Constraint("Tangent", 1, 2, 2, 1))
sketch4.addConstraint(Sketcher.Constraint("Coincident", 2, 2, 3, 1))
sketch4.addConstraint(Sketcher.Constraint("Coincident", 3, 2, 0, 1))
sketch4.addConstraint(Sketcher.Constraint("Tangent", 4, 2, 5, 1))
sketch4.addConstraint(Sketcher.Constraint("Tangent", 5, 2, 6, 1))
sketch4.addConstraint(Sketcher.Constraint("Coincident", 6, 2, 7, 1))
sketch4.addConstraint(Sketcher.Constraint("Coincident", 7, 2, 4, 1))
sketch4.addConstraint(Sketcher.Constraint("Equal", 1, 5))
sketch4.addConstraint(Sketcher.Constraint("Equal", 3, 7))
sketch4.addConstraint(Sketcher.Constraint("Symmetric", 1, 3, 5, 3, -2))
sketch4.addConstraint(Sketcher.Constraint("Symmetric", 3, 3, 7, 3, -2))
sketch4.addConstraint(Sketcher.Constraint("Horizontal", 1, 2, 4, 2))
sketch4.addConstraint(Sketcher.Constraint("Horizontal", 0, 2, 5, 2))
sketch4.addConstraint(Sketcher.Constraint("Radius", 1, 2.0))
sketch4.addConstraint(Sketcher.Constraint("Radius", 3, 48.5))
sketch4.addConstraint(Sketcher.Constraint("Distance", 0, 9.0))
sketch4.addConstraint(Sketcher.Constraint("DistanceX", 3, 3, 7, 3, 135.0))
sketch4.addConstraint(Sketcher.Constraint("DistanceX", 1, 3, 1, 2, 1.2))
sketch4.addConstraint(Sketcher.Constraint("DistanceY", 0, 2, 2, 2, 8.4494))
sketch4.addConstraint(Sketcher.Constraint("DistanceX", 0, 2, -1, 1, 103.483971))
sketch4.addConstraint(Sketcher.Constraint("DistanceY", 0, 2, -1, 1, 41.41099))
sketch4.setExpression("Constraints[14]", "Params.sketch4_radius")
sketch4.setExpression("Constraints[15]", "Params.sketch4_radius2")
sketch4.setExpression("Constraints[16]", "Params.sketch4_length")
sketch4.setExpression("Constraints[18]", "Params.sketch4_width")
pocket2 = body.newObject("PartDesign::Pocket", "Pocket001")
pocket2.Profile = sketch4
pocket2.Type = "ThroughAll"
pocket2.Midplane = True

# Sketch on XY plane
sketch5 = body.newObject("Sketcher::SketchObject", "Sketch004")
sketch5.AttachmentSupport = (doc.getObject("XY_Plane"), [""])
sketch5.MapMode = "FlatFace"
sketch5.AttachmentOffset = App.Placement(V(0, 0, 0.6), App.Rotation())
add_polygon(sketch5, [(-50, -4), (-50, -5), (50, -5), (50, -4)])  # lines 0-3
sketch5.addConstraint(Sketcher.Constraint("Vertical", 0))
sketch5.addConstraint(Sketcher.Constraint("Horizontal", 1))
sketch5.addConstraint(Sketcher.Constraint("Vertical", 2))
sketch5.addConstraint(Sketcher.Constraint("Horizontal", 3))
sketch5.addConstraint(Sketcher.Constraint("DistanceX", 1, 1, 1, 2, 100.0))
sketch5.addConstraint(Sketcher.Constraint("DistanceY", 0, 2, 0, 1, 1.0))
sketch5.addConstraint(Sketcher.Constraint("DistanceX", 0, 2, -1, 1, 50.0))
sketch5.addConstraint(Sketcher.Constraint("DistanceY", 0, 2, -1, 1, 5.0))
sketch5.setExpression("Constraints[8]", "Params.sketch5_width")
sketch5.setExpression("Constraints[9]", "Params.sketch5_height")
pocket3 = body.newObject("PartDesign::Pocket", "Pocket002")
pocket3.Profile = sketch5
pocket3.setExpression("Length", "Params.pocket3_length")

doc.recompute()
